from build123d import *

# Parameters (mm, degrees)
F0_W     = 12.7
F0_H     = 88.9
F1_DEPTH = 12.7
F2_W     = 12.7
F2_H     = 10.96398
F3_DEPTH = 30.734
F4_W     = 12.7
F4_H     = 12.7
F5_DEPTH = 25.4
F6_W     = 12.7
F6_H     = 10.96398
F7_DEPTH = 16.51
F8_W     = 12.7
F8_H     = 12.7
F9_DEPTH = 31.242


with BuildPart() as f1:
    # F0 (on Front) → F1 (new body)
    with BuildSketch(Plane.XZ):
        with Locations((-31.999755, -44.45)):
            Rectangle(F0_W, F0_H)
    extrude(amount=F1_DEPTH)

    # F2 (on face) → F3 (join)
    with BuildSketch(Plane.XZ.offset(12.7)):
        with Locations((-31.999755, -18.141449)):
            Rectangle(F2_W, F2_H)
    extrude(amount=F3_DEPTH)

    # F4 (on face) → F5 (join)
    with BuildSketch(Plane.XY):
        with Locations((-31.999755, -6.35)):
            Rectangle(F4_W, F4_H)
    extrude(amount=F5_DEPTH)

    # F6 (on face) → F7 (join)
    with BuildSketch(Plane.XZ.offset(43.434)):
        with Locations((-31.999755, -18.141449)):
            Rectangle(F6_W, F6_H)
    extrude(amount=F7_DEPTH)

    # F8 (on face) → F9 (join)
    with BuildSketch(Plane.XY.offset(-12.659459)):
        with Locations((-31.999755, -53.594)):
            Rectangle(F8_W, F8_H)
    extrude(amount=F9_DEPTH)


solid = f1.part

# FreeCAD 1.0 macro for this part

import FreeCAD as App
import Part
import Sketcher

V = App.Vector
Q = App.Units.Quantity


def add_polygon(sketch, points):
    """Adds a closed chain of lines whose ends are joined by coincident constraints."""
    first, n = sketch.GeometryCount, len(points)
    for a, b in zip(points, points[1:] + points[:1]):
        sketch.addGeometry(Part.LineSegment(App.Vector(*a, 0), App.Vector(*b, 0)), False)
    for i in range(n):
        sketch.addConstraint(Sketcher.Constraint("Coincident", first + i, 2, first + (i + 1) % n, 1))

doc = App.newDocument("Part")
params = doc.addObject("Spreadsheet::Sheet", "Params")
for row, (alias, value) in enumerate([
    ("sketch1_width", "0.5 in"),
    ("sketch1_height", "3.5 in"),
    ("pad1_length", "0.5 in"),
    ("sketch2_width", "0.5 in"),
    ("pad2_length", "1.21 in"),
    ("sketch3_width", "0.5 in"),
    ("pad3_length", "1 in"),
    ("sketch4_width", "0.5 in"),
    ("pad4_length", "0.65 in"),
    ("sketch5_width", "0.5 in"),
    ("pad5_length", "1.23 in"),
], start=1):
    params.set(f"A{row}", alias)
    params.set(f"B{row}", "=" + value)
    params.setAlias(f"B{row}", alias)

body = doc.addObject("PartDesign::Body", "Body")

sketch1 = doc.addObject("Sketcher::SketchObject", "Sketch")
body.addObject(sketch1)
sketch1.AttachmentSupport = (doc.XZ_Plane, [""])
sketch1.MapMode = "FlatFace"
add_polygon(sketch1, [(-38, 0), (-38, -89), (-26, -89), (-26, 0)])
sketch1.addConstraint(Sketcher.Constraint("Vertical", 0))
sketch1.addConstraint(Sketcher.Constraint("Horizontal", 1))
sketch1.addConstraint(Sketcher.Constraint("Vertical", 2))
sketch1.addConstraint(Sketcher.Constraint("Horizontal", 3))
sketch1.addConstraint(Sketcher.Constraint("PointOnObject", 2, 2, -1))
sketch1.addConstraint(Sketcher.Constraint("DistanceX", 1, 1, 1, 2, Q("0.5 in")))
sketch1.addConstraint(Sketcher.Constraint("DistanceY", 0, 2, 0, 1, Q("3.5 in")))
sketch1.addConstraint(Sketcher.Constraint("DistanceX", 0, 2, -1, 1, 38.349755))
sketch1.setExpression("Constraints[9]", "Params.sketch1_width")
sketch1.setExpression("Constraints[10]", "Params.sketch1_height")
pad1 = doc.addObject("PartDesign::Pad", "Pad")
body.addObject(pad1)
pad1.Profile = sketch1
pad1.setExpression("Length", "Params.pad1_length")

sketch2 = doc.addObject("Sketcher::SketchObject", "Sketch001")
body.addObject(sketch2)
sketch2.AttachmentSupport = (doc.XZ_Plane, [""])
sketch2.MapMode = "FlatFace"
sketch2.AttachmentOffset = App.Placement(V(0, 0, 0.5 * 25.4), App.Rotation())
add_polygon(sketch2, [(-38, -13), (-38, -24), (-26, -24), (-26, -13)])
sketch2.addConstraint(Sketcher.Constraint("Vertical", 0))
sketch2.addConstraint(Sketcher.Constraint("Horizontal", 1))
sketch2.addConstraint(Sketcher.Constraint("Vertical", 2))
sketch2.addConstraint(Sketcher.Constraint("Horizontal", 3))
sketch2.addConstraint(Sketcher.Constraint("DistanceX", 1, 1, 1, 2, Q("0.5 in")))
sketch2.addConstraint(Sketcher.Constraint("DistanceY", 0, 2, 0, 1, 10.96398))
sketch2.addConstraint(Sketcher.Constraint("DistanceY", 0, 2, -1, 1, 23.623439))
sketch2.addConstraint(Sketcher.Constraint("DistanceX", 0, 2, -1, 1, 38.349755))
sketch2.setExpression("Constraints[8]", "Params.sketch2_width")
pad2 = doc.addObject("PartDesign::Pad", "Pad001")
body.addObject(pad2)
pad2.Profile = sketch2
pad2.setExpression("Length", "Params.pad2_length")

sketch3 = doc.addObject("Sketcher::SketchObject", "Sketch002")
body.addObject(sketch3)
sketch3.AttachmentSupport = (doc.XY_Plane, [""])
sketch3.MapMode = "FlatFace"
add_polygon(sketch3, [(-38, 0), (-38, -13), (-26, -13), (-26, 0)])
sketch3.addConstraint(Sketcher.Constraint("Vertical", 0))
sketch3.addConstraint(Sketcher.Constraint("Horizontal", 1))
sketch3.addConstraint(Sketcher.Constraint("Vertical", 2))
sketch3.addConstraint(Sketcher.Constraint("Horizontal", 3))
sketch3.addConstraint(Sketcher.Constraint("PointOnObject", 2, 2, -1))
sketch3.addConstraint(Sketcher.Constraint("Equal", 3, 0))
sketch3.addConstraint(Sketcher.Constraint("DistanceX", 1, 1, 1, 2, Q("0.5 in")))
sketch3.addConstraint(Sketcher.Constraint("DistanceX", 0, 2, -1, 1, 38.349755))
sketch3.setExpression("Constraints[10]", "Params.sketch3_width")
pad3 = doc.addObject("PartDesign::Pad", "Pad002")
body.addObject(pad3)
pad3.Profile = sketch3
pad3.setExpression("Length", "Params.pad3_length")

sketch4 = doc.addObject("Sketcher::SketchObject", "Sketch003")
body.addObject(sketch4)
sketch4.AttachmentSupport = (doc.XZ_Plane, [""])
sketch4.MapMode = "FlatFace"
sketch4.AttachmentOffset = App.Placement(V(0, 0, 1.71 * 25.4), App.Rotation())
add_polygon(sketch4, [(-38, -13), (-38, -24), (-26, -24), (-26, -13)])
sketch4.addConstraint(Sketcher.Constraint("Vertical", 0))
sketch4.addConstraint(Sketcher.Constraint("Horizontal", 1))
sketch4.addConstraint(Sketcher.Constraint("Vertical", 2))
sketch4.addConstraint(Sketcher.Constraint("Horizontal", 3))
sketch4.addConstraint(Sketcher.Constraint("DistanceX", 1, 1, 1, 2, Q("0.5 in")))
sketch4.addConstraint(Sketcher.Constraint("DistanceY", 0, 2, 0, 1, 10.96398))
sketch4.addConstraint(Sketcher.Constraint("DistanceY", 0, 2, -1, 1, 23.623439))
sketch4.addConstraint(Sketcher.Constraint("DistanceX", 0, 2, -1, 1, 38.349755))
sketch4.setExpression("Constraints[8]", "Params.sketch4_width")
pad4 = doc.addObject("PartDesign::Pad", "Pad003")
body.addObject(pad4)
pad4.Profile = sketch4
pad4.setExpression("Length", "Params.pad4_length")

sketch5 = doc.addObject("Sketcher::SketchObject", "Sketch004")
body.addObject(sketch5)
sketch5.AttachmentSupport = (doc.XY_Plane, [""])
sketch5.MapMode = "FlatFace"
sketch5.AttachmentOffset = App.Placement(V(0, 0, -12.659459), App.Rotation())
add_polygon(sketch5, [(-38, -47), (-38, -60), (-26, -60), (-26, -47)])
sketch5.addConstraint(Sketcher.Constraint("Vertical", 0))
sketch5.addConstraint(Sketcher.Constraint("Horizontal", 1))
sketch5.addConstraint(Sketcher.Constraint("Vertical", 2))
sketch5.addConstraint(Sketcher.Constraint("Horizontal", 3))
sketch5.addConstraint(Sketcher.Constraint("Equal", 3, 0))
sketch5.addConstraint(Sketcher.Constraint("DistanceX", 1, 1, 1, 2, Q("0.5 in")))
sketch5.addConstraint(Sketcher.Constraint("DistanceY", 0, 2, -1, 1, Q("2.36 in")))
sketch5.addConstraint(Sketcher.Constraint("DistanceX", 0, 2, -1, 1, 38.349755))
sketch5.setExpression("Constraints[9]", "Params.sketch5_width")
pad5 = doc.addObject("PartDesign::Pad", "Pad004")
body.addObject(pad5)
pad5.Profile = sketch5
pad5.setExpression("Length", "Params.pad5_length")

doc.recompute()
